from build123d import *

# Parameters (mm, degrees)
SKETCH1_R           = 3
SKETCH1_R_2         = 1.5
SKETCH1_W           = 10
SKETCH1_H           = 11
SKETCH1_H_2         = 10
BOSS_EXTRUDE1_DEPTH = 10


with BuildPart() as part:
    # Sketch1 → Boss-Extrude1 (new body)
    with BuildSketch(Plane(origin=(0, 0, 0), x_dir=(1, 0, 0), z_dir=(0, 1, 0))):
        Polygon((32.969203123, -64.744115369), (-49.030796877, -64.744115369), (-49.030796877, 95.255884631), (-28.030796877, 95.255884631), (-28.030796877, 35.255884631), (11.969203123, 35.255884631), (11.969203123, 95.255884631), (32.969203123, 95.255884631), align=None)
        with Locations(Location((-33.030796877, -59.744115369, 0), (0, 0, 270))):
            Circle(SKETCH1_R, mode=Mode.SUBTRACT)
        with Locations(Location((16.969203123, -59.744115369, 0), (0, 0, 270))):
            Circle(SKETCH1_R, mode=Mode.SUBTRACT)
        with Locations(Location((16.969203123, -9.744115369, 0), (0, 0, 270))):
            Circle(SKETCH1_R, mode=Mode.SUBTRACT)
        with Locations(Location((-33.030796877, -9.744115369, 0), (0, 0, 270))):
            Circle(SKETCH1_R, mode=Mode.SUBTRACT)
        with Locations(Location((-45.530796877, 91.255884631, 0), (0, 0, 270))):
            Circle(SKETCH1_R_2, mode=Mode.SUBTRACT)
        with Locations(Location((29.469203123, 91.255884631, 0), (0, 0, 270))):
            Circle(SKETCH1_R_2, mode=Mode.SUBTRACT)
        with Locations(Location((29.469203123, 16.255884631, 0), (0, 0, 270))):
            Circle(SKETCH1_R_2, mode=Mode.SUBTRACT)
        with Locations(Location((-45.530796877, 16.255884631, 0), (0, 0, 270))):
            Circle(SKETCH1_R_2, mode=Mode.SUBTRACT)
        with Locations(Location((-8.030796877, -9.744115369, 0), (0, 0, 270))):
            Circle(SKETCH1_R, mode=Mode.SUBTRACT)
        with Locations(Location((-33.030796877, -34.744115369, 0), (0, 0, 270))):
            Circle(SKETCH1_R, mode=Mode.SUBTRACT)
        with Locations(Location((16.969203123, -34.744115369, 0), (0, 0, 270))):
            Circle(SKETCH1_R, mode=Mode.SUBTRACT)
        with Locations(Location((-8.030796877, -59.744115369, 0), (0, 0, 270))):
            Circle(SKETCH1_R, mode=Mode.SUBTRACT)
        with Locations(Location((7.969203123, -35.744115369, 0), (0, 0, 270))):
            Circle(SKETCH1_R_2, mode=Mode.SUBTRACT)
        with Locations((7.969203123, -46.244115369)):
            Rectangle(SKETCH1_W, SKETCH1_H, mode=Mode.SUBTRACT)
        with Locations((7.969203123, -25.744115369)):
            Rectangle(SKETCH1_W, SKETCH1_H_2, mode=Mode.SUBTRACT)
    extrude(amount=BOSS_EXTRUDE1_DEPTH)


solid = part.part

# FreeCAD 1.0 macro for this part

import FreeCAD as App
import Part
import Sketcher
from FreeCAD import Vector


def add_polygon(sketch, points):
    """Adds a closed chain of lines whose ends are joined by coincident constraints."""
    first, n = sketch.GeometryCount, len(points)
    for a, b in zip(points, points[1:] + points[:1]):
        sketch.addGeometry(Part.LineSegment(App.Vector(*a, 0), App.Vector(*b, 0)), False)
    for i in range(n):
        sketch.addConstraint(Sketcher.Constraint("Coincident", first + i, 2, first + (i + 1) % n, 1))

doc = App.newDocument("Part")
body = doc.addObject("PartDesign::Body", "Body")

# Sketch on XZ plane
sketch1 = body.newObject("Sketcher::SketchObject", "Sketch")
sketch1.AttachmentSupport = (doc.getObject("XZ_Plane"), [""])
sketch1.MapMode = "FlatFace"
add_polygon(sketch1, [(-49, 64.7), (33, 64.7), (33, -95.3), (12, -95.3), (12, -35.3), (-28, -35.3), (-28, -95.3), (-49, -95.3)])  # lines 0-7
sketch1.addGeometry(Part.Circle(Vector(17, 59.7, 0), Vector(0, 0, 1), 3), False)  # 8
sketch1.addGeometry(Part.Circle(Vector(17, 34.7, 0), Vector(0, 0, 1), 3), False)  # 9
add_polygon(sketch1, [(3, 51.7), (3, 40.7), (13, 40.7), (13, 51.7)])  # lines 10-13
sketch1.addGeometry(Part.Circle(Vector(8, 35.7, 0), Vector(0, 0, 1), 1.5), False)  # 14
add_polygon(sketch1, [(3, 30.7), (3, 20.7), (13, 20.7), (13, 30.7)])  # lines 15-18
sketch1.addGeometry(Part.Circle(Vector(17, 9.7, 0), Vector(0, 0, 1), 3), False)  # 19
sketch1.addGeometry(Part.Circle(Vector(-8, 59.7, 0), Vector(0, 0, 1), 3), False)  # 20
sketch1.addGeometry(Part.Circle(Vector(-33, 59.7, 0), Vector(0, 0, 1), 3), False)  # 21
sketch1.addGeometry(Part.Circle(Vector(-33, 34.7, 0), Vector(0, 0, 1), 3), False)  # 22
sketch1.addGeometry(Part.Circle(Vector(-8, 9.7, 0), Vector(0, 0, 1), 3), False)  # 23
sketch1.addGeometry(Part.Circle(Vector(-33, 9.7, 0), Vector(0, 0, 1), 3), False)  # 24
sketch1.addGeometry(Part.Circle(Vector(29.5, -16.3, 0), Vector(0, 0, 1), 1.5), False)  # 25
sketch1.addGeometry(Part.Circle(Vector(29.5, -91.3, 0), Vector(0, 0, 1), 1.5), False)  # 26
sketch1.addGeometry(Part.Circle(Vector(-45.5, -16.3, 0), Vector(0, 0, 1), 1.5), False)  # 27
sketch1.addGeometry(Part.Circle(Vector(-45.5, -91.3, 0), Vector(0, 0, 1), 1.5), False)  # 28
sketch1.addConstraint([
    Sketcher.Constraint("Horizontal", 0),
    Sketcher.Constraint("Vertical", 1),
    Sketcher.Constraint("Horizontal", 2),
    Sketcher.Constraint("Vertical", 3),
    Sketcher.Constraint("Horizontal", 4),
    Sketcher.Constraint("Vertical", 5),
    Sketcher.Constraint("Horizontal", 6),
    Sketcher.Constraint("Vertical", 7),
    Sketcher.Constraint("Vertical", 10),
    Sketcher.Constraint("Horizontal", 11),
    Sketcher.Constraint("Vertical", 12),
    Sketcher.Constraint("Horizontal", 13),
    Sketcher.Constraint("Vertical", 15),
    Sketcher.Constraint("Horizontal", 16),
    Sketcher.Constraint("Vertical", 17),
    Sketcher.Constraint("Horizontal", 18),
    Sketcher.Constraint("Equal", 8, 9),
    Sketcher.Constraint("Equal", 9, 19),
    Sketcher.Constraint("Equal", 19, 20),
    Sketcher.Constraint("Equal", 20, 21),
    Sketcher.Constraint("Equal", 21, 22),
    Sketcher.Constraint("Equal", 22, 23),
    Sketcher.Constraint("Equal", 23, 24),
    Sketcher.Constraint("Equal", 14, 25),
    Sketcher.Constraint("Equal", 25, 26),
    Sketcher.Constraint("Equal", 26, 27),
    Sketcher.Constraint("Equal", 27, 28),
    Sketcher.Constraint("Horizontal", 8, 3, 20, 3),
    Sketcher.Constraint("Horizontal", 20, 3, 21, 3),
    Sketcher.Constraint("Horizontal", 9, 3, 22, 3),
    Sketcher.Constraint("Horizontal", 19, 3, 23, 3),
    Sketcher.Constraint("Horizontal", 23, 3, 24, 3),
    Sketcher.Constraint("Horizontal", 25, 3, 27, 3),
    Sketcher.Constraint("Horizontal", 26, 3, 28, 3),
    Sketcher.Constraint("Horizontal", 2, 2, 5, 2),
    Sketcher.Constraint("Vertical", 8, 3, 9, 3),
    Sketcher.Constraint("Vertical", 9, 3, 19, 3),
    Sketcher.Constraint("Vertical", 21, 3, 22, 3),
    Sketcher.Constraint("Vertical", 20, 3, 23, 3),
    Sketcher.Constraint("Vertical", 22, 3, 24, 3),
    Sketcher.Constraint("Vertical", 25, 3, 26, 3),
    Sketcher.Constraint("Vertical", 27, 3, 28, 3),
    Sketcher.Constraint("Vertical", 13, 2, 15, 2),
    Sketcher.Constraint("Vertical", 12, 2, 16, 2),
    Sketcher.Constraint("Equal", 2, 6),
    Sketcher.Constraint("Equal", 18, 15),
    Sketcher.Constraint("Diameter", 8, 6.0),
    Sketcher.Constraint("Diameter", 14, 3.0),
    Sketcher.Constraint("DistanceX", 0, 1, 0, 2, 82.0),
    Sketcher.Constraint("DistanceX", 2, 2, 2, 1, 21.0),
    Sketcher.Constraint("DistanceX", 11, 1, 11, 2, 10.0),
    Sketcher.Constraint("DistanceY", 1, 2, 1, 1, 160.0),
    Sketcher.Constraint("DistanceY", 3, 1, 3, 2, 60.0),
    Sketcher.Constraint("DistanceY", 10, 2, 10, 1, 11.0),
    Sketcher.Constraint("DistanceY", 9, 3, 8, 3, 25.0),
    Sketcher.Constraint("DistanceX", 14, 3, 9, 3, 9.0),
    Sketcher.Constraint("DistanceY", 9, 3, 14, 3, 1.0),
    Sketcher.Constraint("DistanceY", 19, 3, 9, 3, 25.0),
    Sketcher.Constraint("DistanceX", 20, 3, 8, 3, 25.0),
    Sketcher.Constraint("DistanceX", 21, 3, 20, 3, 25.0),
    Sketcher.Constraint("DistanceY", 25, 3, 19, 3, 26.0),
    Sketcher.Constraint("DistanceY", 26, 3, 25, 3, 75.0),
    Sketcher.Constraint("DistanceX", 28, 3, 26, 3, 75.0),
    Sketcher.Constraint("DistanceX", 8, 3, 0, 2, 16.0),
    Sketcher.Constraint("DistanceY", 8, 3, 0, 2, 5.0),
    Sketcher.Constraint("DistanceX", 10, 2, 14, 3, 5.0),
    Sketcher.Constraint("DistanceY", 14, 3, 10, 2, 5.0),
    Sketcher.Constraint("DistanceY", 23, 3, 15, 2, 11.0),
    Sketcher.Constraint("DistanceX", 19, 3, 25, 3, 12.5),
    Sketcher.Constraint("DistanceX", -1, 1, 8, 3, 16.969203),
    Sketcher.Constraint("DistanceY", -1, 1, 8, 3, 59.744115),
])
pad1 = body.newObject("PartDesign::Pad", "Pad")
pad1.Profile = sketch1
pad1.Length = 10
pad1.Reversed = True

doc.recompute()
